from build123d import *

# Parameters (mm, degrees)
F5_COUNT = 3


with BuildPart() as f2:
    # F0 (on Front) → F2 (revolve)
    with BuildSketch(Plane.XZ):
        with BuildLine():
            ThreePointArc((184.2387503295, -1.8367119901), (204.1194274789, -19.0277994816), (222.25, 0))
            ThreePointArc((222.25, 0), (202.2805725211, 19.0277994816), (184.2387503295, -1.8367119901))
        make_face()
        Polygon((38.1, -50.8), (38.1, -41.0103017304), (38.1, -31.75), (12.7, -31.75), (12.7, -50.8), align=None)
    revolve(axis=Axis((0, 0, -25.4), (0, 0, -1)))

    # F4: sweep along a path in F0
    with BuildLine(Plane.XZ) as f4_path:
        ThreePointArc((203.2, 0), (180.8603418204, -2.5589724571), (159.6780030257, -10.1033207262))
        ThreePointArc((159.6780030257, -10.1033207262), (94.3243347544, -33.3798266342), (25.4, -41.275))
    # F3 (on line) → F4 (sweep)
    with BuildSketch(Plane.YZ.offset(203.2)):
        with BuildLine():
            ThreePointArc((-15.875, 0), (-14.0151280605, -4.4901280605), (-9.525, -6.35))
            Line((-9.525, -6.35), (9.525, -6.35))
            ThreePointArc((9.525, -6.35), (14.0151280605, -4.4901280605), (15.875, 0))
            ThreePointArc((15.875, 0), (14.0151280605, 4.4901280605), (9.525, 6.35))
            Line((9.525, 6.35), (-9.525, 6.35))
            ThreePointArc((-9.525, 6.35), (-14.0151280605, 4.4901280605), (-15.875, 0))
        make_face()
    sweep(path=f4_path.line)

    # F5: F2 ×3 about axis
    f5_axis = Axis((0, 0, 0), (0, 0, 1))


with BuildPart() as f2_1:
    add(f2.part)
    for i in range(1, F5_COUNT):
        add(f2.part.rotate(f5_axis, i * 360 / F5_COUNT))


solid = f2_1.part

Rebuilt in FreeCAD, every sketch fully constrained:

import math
import FreeCAD as App
import Part
import Sketcher
Q = App.Units.Quantity


def add_polygon(sketch, points):
    """Adds a closed chain of lines whose ends are joined by coincident constraints."""
    first, n = sketch.GeometryCount, len(points)
    for a, b in zip(points, points[1:] + points[:1]):
        sketch.addGeometry(Part.LineSegment(App.Vector(*a, 0), App.Vector(*b, 0)), False)
    for i in range(n):
        sketch.addConstraint(Sketcher.Constraint("Coincident", first + i, 2, first + (i + 1) % n, 1))

doc = App.newDocument("Part")
params = doc.addObject("Spreadsheet::Sheet", "Params")
for row, (alias, value) in enumerate([
    ("sketch1_diameter", "1.5 in"),
    ("sketch1_width", "1 in"),
    ("sketch1_height", "0.75 in"),
    ("revolution_angle", "360 deg"),
    ("sketch2_radius", "0.25 in"),
    ("sketch3_radius", "12 in"),
], start=1):
    params.set(f"A{row}", alias)
    params.set(f"B{row}", "=" + value)
    params.setAlias(f"B{row}", alias)

body = doc.addObject("PartDesign::Body", "Body")
body.AllowCompound = True

sketch1 = body.newObject("Sketcher::SketchObject", "Sketch")
sketch1.AttachmentSupport = (doc.getObject("XZ_Plane"), [""])
sketch1.MapMode = "FlatFace"
sketch1.addGeometry(Part.Circle(App.Vector(203.2, 0, 0), App.Vector(0, 0, 1), 19.05), False)
add_polygon(sketch1, [(38.1, -50.8), (38.1, -31.75), (12.7, -31.75), (12.7, -50.8)])
sketch1.addConstraint([
    Sketcher.Constraint("Vertical", 1),
    Sketcher.Constraint("Horizontal", 2),
    Sketcher.Constraint("Vertical", 3),
    Sketcher.Constraint("Horizontal", 4),
    Sketcher.Constraint("PointOnObject", 0, 3, -1),
    Sketcher.Constraint("Diameter", 0, Q("1.5 in")),
    Sketcher.Constraint("DistanceX", 2, 2, 2, 1, Q("1 in")),
    Sketcher.Constraint("DistanceX", -1, 1, 0, 3, Q("8 in")),
    Sketcher.Constraint("DistanceY", 3, 2, -1, 1, Q("2 in")),
    Sketcher.Constraint("DistanceY", 1, 1, 1, 2, Q("0.75 in")),
    Sketcher.Constraint("DistanceX", -1, 1, 1, 2, Q("1.5 in")),
])
sketch1.setExpression("Constraints[9]", "Params.sketch1_diameter")
sketch1.setExpression("Constraints[10]", "Params.sketch1_width")
sketch1.setExpression("Constraints[13]", "Params.sketch1_height")
revolution = body.newObject("PartDesign::Revolution", "Revolution")
revolution.Profile = sketch1
revolution.ReferenceAxis = (sketch1, ["V_Axis"])
revolution.setExpression("Angle", "Params.revolution_angle")

sketch2 = body.newObject("Sketcher::SketchObject", "Sketch001")
sketch2.AttachmentSupport = (doc.getObject("YZ_Plane"), [""])
sketch2.MapMode = "FlatFace"
sketch2.AttachmentOffset = App.Placement(App.Vector(0, 0, 8 * 25.4), App.Rotation())
sketch2.addGeometry([
    Part.ArcOfCircle(Part.Circle(App.Vector(-9.525, 0, 0), App.Vector(0, 0, 1), 6.35), math.radians(180), math.radians(270)),
    Part.LineSegment(App.Vector(-9.525, -6.35, 0), App.Vector(9.525, -6.35, 0)),
    Part.ArcOfCircle(Part.Circle(App.Vector(9.525, 0, 0), App.Vector(0, 0, 1), 6.35), math.radians(-90), math.radians(0)),
    Part.ArcOfCircle(Part.Circle(App.Vector(9.525, 0, 0), App.Vector(0, 0, 1), 6.35), math.radians(0), math.radians(90)),
    Part.LineSegment(App.Vector(9.525, 6.35, 0), App.Vector(-9.525, 6.35, 0)),
    Part.ArcOfCircle(Part.Circle(App.Vector(-9.525, 0, 0), App.Vector(0, 0, 1), 6.35), math.radians(90), math.radians(180)),
], False)
sketch2.addConstraint([
    Sketcher.Constraint("Tangent", 0, 2, 1, 1),
    Sketcher.Constraint("Tangent", 1, 2, 2, 1),
    Sketcher.Constraint("Tangent", 2, 2, 3, 1),
    Sketcher.Constraint("Tangent", 3, 2, 4, 1),
    Sketcher.Constraint("Tangent", 4, 2, 5, 1),
    Sketcher.Constraint("Tangent", 5, 2, 0, 1),
    Sketcher.Constraint("Horizontal", 1),
    Sketcher.Constraint("Horizontal", 4),
    Sketcher.Constraint("Equal", 0, 2),
    Sketcher.Constraint("Equal", 2, 3),
    Sketcher.Constraint("Symmetric", 0, 3, 2, 3, -1, 1),
    Sketcher.Constraint("PointOnObject", 2, 2, -1),
    Sketcher.Constraint("PointOnObject", 5, 2, -1),
    Sketcher.Constraint("Radius", 0, Q("0.25 in")),
    Sketcher.Constraint("DistanceX", 0, 3, 2, 2, Q("1 in")),
])
sketch2.setExpression("Constraints[13]", "Params.sketch2_radius")

sketch3 = body.newObject("Sketcher::SketchObject", "Sketch002")
sketch3.AttachmentSupport = (doc.getObject("XZ_Plane"), [""])
sketch3.MapMode = "FlatFace"
sketch3.addGeometry([
    Part.ArcOfCircle(Part.Circle(App.Vector(203.2, -98.791346, 0), App.Vector(0, 0, 1), 98.791346), math.radians(90), math.radians(116.138636)),
    Part.ArcOfCircle(Part.Circle(App.Vector(25.4, 263.525, 0), App.Vector(0, 0, 1), 304.8), math.radians(-90), math.radians(-63.861364)),
], False)
sketch3.addConstraint([
    Sketcher.Constraint("Tangent", 0, 2, 1, 2),
    Sketcher.Constraint("PointOnObject", 0, 1, -1),
    Sketcher.Constraint("Radius", 1, Q("12 in")),
    Sketcher.Constraint("DistanceX", -1, 1, 0, 3, Q("8 in")),
    Sketcher.Constraint("DistanceX", -1, 1, 1, 3, Q("1 in")),
    Sketcher.Constraint("DistanceX", -1, 1, 0, 1, Q("8 in")),
    Sketcher.Constraint("DistanceX", -1, 1, 1, 1, Q("1 in")),
    Sketcher.Constraint("DistanceY", -1, 1, 1, 3, Q("10.375 in")),
])
sketch3.setExpression("Constraints[2]", "Params.sketch3_radius")
doc.recompute()

additivepipe = body.newObject("PartDesign::AdditivePipe", "AdditivePipe")
additivepipe.Profile = sketch2
additivepipe.Spine = (sketch3, ["Edge1", "Edge2"])
body2 = doc.addObject("PartDesign::Body", "Body001")
doc.recompute()

body2.BaseFeature = body
doc.recompute()

body3 = doc.addObject("PartDesign::Body", "Body002")
body3.BaseFeature = body
body3.Placement = App.Placement(App.Vector(0, 0, 0), App.Rotation(App.Vector(0, 0, 1), 120))
boolean = body2.newObject("PartDesign::Boolean", "Boolean")
boolean.Type = "Fuse"
boolean.addObjects([body3])
doc.recompute()

body.Placement = App.Placement(App.Vector(0, 0, 0), App.Rotation(App.Vector(0, 0, 1), 240))
boolean2 = body2.newObject("PartDesign::Boolean", "Boolean001")
boolean2.Type = "Fuse"
boolean2.addObjects([body])

doc.recompute()
